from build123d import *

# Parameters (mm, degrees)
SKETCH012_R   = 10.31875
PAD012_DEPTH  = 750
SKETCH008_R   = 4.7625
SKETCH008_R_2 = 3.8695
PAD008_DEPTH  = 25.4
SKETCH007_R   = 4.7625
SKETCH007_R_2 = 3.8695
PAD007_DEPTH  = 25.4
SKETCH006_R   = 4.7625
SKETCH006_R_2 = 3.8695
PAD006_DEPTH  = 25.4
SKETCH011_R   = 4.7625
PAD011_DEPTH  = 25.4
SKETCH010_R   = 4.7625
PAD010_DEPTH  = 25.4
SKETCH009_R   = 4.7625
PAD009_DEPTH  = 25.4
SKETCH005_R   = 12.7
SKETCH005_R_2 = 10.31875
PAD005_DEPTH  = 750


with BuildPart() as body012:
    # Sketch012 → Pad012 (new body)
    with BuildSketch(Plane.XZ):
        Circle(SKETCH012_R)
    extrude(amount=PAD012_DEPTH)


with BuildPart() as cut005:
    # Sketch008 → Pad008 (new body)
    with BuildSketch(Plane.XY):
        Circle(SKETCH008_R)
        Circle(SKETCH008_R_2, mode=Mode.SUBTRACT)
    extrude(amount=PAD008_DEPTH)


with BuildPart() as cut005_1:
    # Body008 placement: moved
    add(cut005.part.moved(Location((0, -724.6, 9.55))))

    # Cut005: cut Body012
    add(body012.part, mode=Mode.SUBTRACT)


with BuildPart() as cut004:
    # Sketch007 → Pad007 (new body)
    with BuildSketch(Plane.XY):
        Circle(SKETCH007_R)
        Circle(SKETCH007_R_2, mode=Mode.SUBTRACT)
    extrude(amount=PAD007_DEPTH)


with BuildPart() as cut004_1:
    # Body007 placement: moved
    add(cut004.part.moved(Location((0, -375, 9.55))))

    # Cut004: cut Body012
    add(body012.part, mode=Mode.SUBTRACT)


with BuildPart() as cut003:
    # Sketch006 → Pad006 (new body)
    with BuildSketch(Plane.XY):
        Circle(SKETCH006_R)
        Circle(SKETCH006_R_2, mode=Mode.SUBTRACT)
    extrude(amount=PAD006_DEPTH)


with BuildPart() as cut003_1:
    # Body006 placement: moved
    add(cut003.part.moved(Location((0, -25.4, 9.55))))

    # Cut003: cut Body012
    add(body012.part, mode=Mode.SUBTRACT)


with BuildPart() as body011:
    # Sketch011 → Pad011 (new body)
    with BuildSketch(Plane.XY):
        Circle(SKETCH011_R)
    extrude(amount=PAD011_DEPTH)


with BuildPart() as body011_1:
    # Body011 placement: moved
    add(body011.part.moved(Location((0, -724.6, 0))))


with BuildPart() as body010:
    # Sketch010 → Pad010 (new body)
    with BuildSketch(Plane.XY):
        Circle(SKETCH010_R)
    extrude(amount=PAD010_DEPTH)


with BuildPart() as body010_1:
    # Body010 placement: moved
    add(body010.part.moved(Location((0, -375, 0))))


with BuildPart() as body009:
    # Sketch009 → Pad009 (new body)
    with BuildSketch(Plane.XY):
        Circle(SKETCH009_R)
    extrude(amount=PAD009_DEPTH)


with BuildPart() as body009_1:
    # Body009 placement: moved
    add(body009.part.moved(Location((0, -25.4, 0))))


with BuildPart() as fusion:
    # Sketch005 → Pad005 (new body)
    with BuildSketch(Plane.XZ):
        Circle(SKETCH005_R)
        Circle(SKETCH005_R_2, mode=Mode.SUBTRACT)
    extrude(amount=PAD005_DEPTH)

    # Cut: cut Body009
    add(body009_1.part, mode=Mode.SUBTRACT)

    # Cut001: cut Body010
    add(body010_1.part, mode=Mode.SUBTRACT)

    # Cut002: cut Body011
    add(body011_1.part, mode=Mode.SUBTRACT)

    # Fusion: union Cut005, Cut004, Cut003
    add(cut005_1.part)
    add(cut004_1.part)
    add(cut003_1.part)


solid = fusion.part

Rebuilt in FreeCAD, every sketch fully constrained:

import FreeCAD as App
import Part
import Sketcher

V = App.Vector
Q = App.Units.Quantity

doc = App.newDocument("Part")
body = doc.addObject("PartDesign::Body", "Body")

sketch1 = body.newObject("Sketcher::SketchObject", "Sketch")
sketch1.AttachmentSupport = (doc.getObject("XZ_Plane"), [""])
sketch1.MapMode = "FlatFace"
sketch1.addGeometry(Part.Circle(V(0, 0, 0), V(0, 0, 1), 10), False)
sketch1.addConstraint(Sketcher.Constraint("Coincident", 0, 3, -1, 1))
sketch1.addConstraint(Sketcher.Constraint("Diameter", 0, Q("0.8125 in")))
pad1 = body.newObject("PartDesign::Pad", "Pad")
pad1.Profile = sketch1
pad1.Length = 750
body2 = doc.addObject("PartDesign::Body", "Body001")

sketch2 = body2.newObject("Sketcher::SketchObject", "Sketch001")
sketch2.AttachmentSupport = (doc.getObject("XY_Plane001"), [""])
sketch2.MapMode = "FlatFace"
sketch2.addGeometry(Part.Circle(V(0, 0, 0), V(0, 0, 1), 4.8), False)
sketch2.addGeometry(Part.Circle(V(0, 0, 0), V(0, 0, 1), 3.9), False)
sketch2.addConstraint(Sketcher.Constraint("Coincident", 0, 3, -1, 1))
sketch2.addConstraint(Sketcher.Constraint("Coincident", 1, 3, -1, 1))
sketch2.addConstraint(Sketcher.Constraint("Diameter", 0, Q("0.375 in")))
sketch2.addConstraint(Sketcher.Constraint("Diameter", 1, 7.739))
pad2 = body2.newObject("PartDesign::Pad", "Pad001")
pad2.Profile = sketch2
pad2.Length = Q("1 in")
body3 = doc.addObject("PartDesign::Body", "Body002")
doc.recompute()

body2.Placement = App.Placement(V(0, -724.6, 9.55), App.Rotation(V(0, 0, 1), 0))
boolean = body3.newObject("PartDesign::Boolean", "Boolean")
boolean.Type = "Fuse"
boolean.addObjects([body2])
doc.recompute()

body4 = doc.addObject("PartDesign::Body", "Body003")
body4.BaseFeature = body
boolean2 = body3.newObject("PartDesign::Boolean", "Boolean001")
boolean2.Type = "Cut"
boolean2.addObjects([body4])
doc.recompute()
body5 = doc.addObject("PartDesign::Body", "Body004")

sketch3 = body5.newObject("Sketcher::SketchObject", "Sketch002")
sketch3.AttachmentSupport = (doc.getObject("XY_Plane004"), [""])
sketch3.MapMode = "FlatFace"
sketch3.addGeometry(Part.Circle(V(0, 0, 0), V(0, 0, 1), 4.8), False)
sketch3.addGeometry(Part.Circle(V(0, 0, 0), V(0, 0, 1), 3.9), False)
sketch3.addConstraint(Sketcher.Constraint("Coincident", 0, 3, -1, 1))
sketch3.addConstraint(Sketcher.Constraint("Coincident", 1, 3, -1, 1))
sketch3.addConstraint(Sketcher.Constraint("Diameter", 0, Q("0.375 in")))
sketch3.addConstraint(Sketcher.Constraint("Diameter", 1, 7.739))
pad3 = body5.newObject("PartDesign::Pad", "Pad002")
pad3.Profile = sketch3
pad3.Length = Q("1 in")
body6 = doc.addObject("PartDesign::Body", "Body005")
doc.recompute()

body5.Placement = App.Placement(V(0, -375, 9.55), App.Rotation(V(0, 0, 1), 0))
boolean3 = body6.newObject("PartDesign::Boolean", "Boolean002")
boolean3.Type = "Fuse"
boolean3.addObjects([body5])
doc.recompute()

body7 = doc.addObject("PartDesign::Body", "Body006")
body7.BaseFeature = body
boolean4 = body6.newObject("PartDesign::Boolean", "Boolean003")
boolean4.Type = "Cut"
boolean4.addObjects([body7])
doc.recompute()
body8 = doc.addObject("PartDesign::Body", "Body007")

sketch4 = body8.newObject("Sketcher::SketchObject", "Sketch003")
sketch4.AttachmentSupport = (doc.getObject("XY_Plane007"), [""])
sketch4.MapMode = "FlatFace"
sketch4.addGeometry(Part.Circle(V(0, 0, 0), V(0, 0, 1), 4.8), False)
sketch4.addGeometry(Part.Circle(V(0, 0, 0), V(0, 0, 1), 3.9), False)
sketch4.addConstraint(Sketcher.Constraint("Coincident", 0, 3, -1, 1))
sketch4.addConstraint(Sketcher.Constraint("Coincident", 1, 3, -1, 1))
sketch4.addConstraint(Sketcher.Constraint("Diameter", 0, Q("0.375 in")))
sketch4.addConstraint(Sketcher.Constraint("Diameter", 1, 7.739))
pad4 = body8.newObject("PartDesign::Pad", "Pad003")
pad4.Profile = sketch4
pad4.Length = Q("1 in")
body9 = doc.addObject("PartDesign::Body", "Body008")
doc.recompute()

body8.Placement = App.Placement(V(0, -25.4, 9.55), App.Rotation(V(0, 0, 1), 0))
boolean5 = body9.newObject("PartDesign::Boolean", "Boolean004")
boolean5.Type = "Fuse"
boolean5.addObjects([body8])
doc.recompute()

boolean6 = body9.newObject("PartDesign::Boolean", "Boolean005")
boolean6.Type = "Cut"
boolean6.addObjects([body])
body10 = doc.addObject("PartDesign::Body", "Body009")

sketch5 = body10.newObject("Sketcher::SketchObject", "Sketch004")
sketch5.AttachmentSupport = (doc.getObject("XY_Plane009"), [""])
sketch5.MapMode = "FlatFace"
sketch5.addGeometry(Part.Circle(V(0, 0, 0), V(0, 0, 1), 4.8), False)
sketch5.addConstraint(Sketcher.Constraint("Coincident", 0, 3, -1, 1))
sketch5.addConstraint(Sketcher.Constraint("Diameter", 0, Q("0.375 in")))
pad5 = body10.newObject("PartDesign::Pad", "Pad004")
pad5.Profile = sketch5
pad5.Length = Q("1 in")
body11 = doc.addObject("PartDesign::Body", "Body010")
doc.recompute()

body10.Placement = App.Placement(V(0, -724.6, 0), App.Rotation(V(0, 0, 1), 0))
boolean7 = body11.newObject("PartDesign::Boolean", "Boolean006")
boolean7.Type = "Fuse"
boolean7.addObjects([body10])
body12 = doc.addObject("PartDesign::Body", "Body011")

sketch6 = body12.newObject("Sketcher::SketchObject", "Sketch005")
sketch6.AttachmentSupport = (doc.getObject("XY_Plane011"), [""])
sketch6.MapMode = "FlatFace"
sketch6.addGeometry(Part.Circle(V(0, 0, 0), V(0, 0, 1), 4.8), False)
sketch6.addConstraint(Sketcher.Constraint("Coincident", 0, 3, -1, 1))
sketch6.addConstraint(Sketcher.Constraint("Diameter", 0, Q("0.375 in")))
pad6 = body12.newObject("PartDesign::Pad", "Pad005")
pad6.Profile = sketch6
pad6.Length = Q("1 in")
body13 = doc.addObject("PartDesign::Body", "Body012")
doc.recompute()

body12.Placement = App.Placement(V(0, -375, 0), App.Rotation(V(0, 0, 1), 0))
boolean8 = body13.newObject("PartDesign::Boolean", "Boolean007")
boolean8.Type = "Fuse"
boolean8.addObjects([body12])
body14 = doc.addObject("PartDesign::Body", "Body013")

sketch7 = body14.newObject("Sketcher::SketchObject", "Sketch006")
sketch7.AttachmentSupport = (doc.getObject("XY_Plane013"), [""])
sketch7.MapMode = "FlatFace"
sketch7.addGeometry(Part.Circle(V(0, 0, 0), V(0, 0, 1), 4.8), False)
sketch7.addConstraint(Sketcher.Constraint("Coincident", 0, 3, -1, 1))
sketch7.addConstraint(Sketcher.Constraint("Diameter", 0, Q("0.375 in")))
pad7 = body14.newObject("PartDesign::Pad", "Pad006")
pad7.Profile = sketch7
pad7.Length = Q("1 in")
body15 = doc.addObject("PartDesign::Body", "Body014")
doc.recompute()

body14.Placement = App.Placement(V(0, -25.4, 0), App.Rotation(V(0, 0, 1), 0))
boolean9 = body15.newObject("PartDesign::Boolean", "Boolean008")
boolean9.Type = "Fuse"
boolean9.addObjects([body14])
body16 = doc.addObject("PartDesign::Body", "Body015")

sketch8 = body16.newObject("Sketcher::SketchObject", "Sketch007")
sketch8.AttachmentSupport = (doc.getObject("XZ_Plane015"), [""])
sketch8.MapMode = "FlatFace"
sketch8.addGeometry(Part.Circle(V(0, 0, 0), V(0, 0, 1), 13), False)
sketch8.addGeometry(Part.Circle(V(0, 0, 0), V(0, 0, 1), 10), False)
sketch8.addConstraint(Sketcher.Constraint("Coincident", 0, 3, -1, 1))
sketch8.addConstraint(Sketcher.Constraint("Coincident", 1, 3, -1, 1))
sketch8.addConstraint(Sketcher.Constraint("Diameter", 0, Q("1 in")))
sketch8.addConstraint(Sketcher.Constraint("Diameter", 1, Q("0.8125 in")))
pad8 = body16.newObject("PartDesign::Pad", "Pad007")
pad8.Profile = sketch8
pad8.Length = 750
doc.recompute()

boolean10 = body16.newObject("PartDesign::Boolean", "Boolean009")
boolean10.Type = "Cut"
boolean10.addObjects([body15])
doc.recompute()

boolean11 = body16.newObject("PartDesign::Boolean", "Boolean010")
boolean11.Type = "Cut"
boolean11.addObjects([body13])
doc.recompute()

boolean12 = body16.newObject("PartDesign::Boolean", "Boolean011")
boolean12.Type = "Cut"
boolean12.addObjects([body11])
doc.recompute()

boolean13 = body16.newObject("PartDesign::Boolean", "Boolean012")
boolean13.Type = "Fuse"
boolean13.addObjects([body3])
doc.recompute()

boolean14 = body16.newObject("PartDesign::Boolean", "Boolean013")
boolean14.Type = "Fuse"
boolean14.addObjects([body6])
doc.recompute()

boolean15 = body16.newObject("PartDesign::Boolean", "Boolean014")
boolean15.Type = "Fuse"
boolean15.addObjects([body9])

doc.recompute()
